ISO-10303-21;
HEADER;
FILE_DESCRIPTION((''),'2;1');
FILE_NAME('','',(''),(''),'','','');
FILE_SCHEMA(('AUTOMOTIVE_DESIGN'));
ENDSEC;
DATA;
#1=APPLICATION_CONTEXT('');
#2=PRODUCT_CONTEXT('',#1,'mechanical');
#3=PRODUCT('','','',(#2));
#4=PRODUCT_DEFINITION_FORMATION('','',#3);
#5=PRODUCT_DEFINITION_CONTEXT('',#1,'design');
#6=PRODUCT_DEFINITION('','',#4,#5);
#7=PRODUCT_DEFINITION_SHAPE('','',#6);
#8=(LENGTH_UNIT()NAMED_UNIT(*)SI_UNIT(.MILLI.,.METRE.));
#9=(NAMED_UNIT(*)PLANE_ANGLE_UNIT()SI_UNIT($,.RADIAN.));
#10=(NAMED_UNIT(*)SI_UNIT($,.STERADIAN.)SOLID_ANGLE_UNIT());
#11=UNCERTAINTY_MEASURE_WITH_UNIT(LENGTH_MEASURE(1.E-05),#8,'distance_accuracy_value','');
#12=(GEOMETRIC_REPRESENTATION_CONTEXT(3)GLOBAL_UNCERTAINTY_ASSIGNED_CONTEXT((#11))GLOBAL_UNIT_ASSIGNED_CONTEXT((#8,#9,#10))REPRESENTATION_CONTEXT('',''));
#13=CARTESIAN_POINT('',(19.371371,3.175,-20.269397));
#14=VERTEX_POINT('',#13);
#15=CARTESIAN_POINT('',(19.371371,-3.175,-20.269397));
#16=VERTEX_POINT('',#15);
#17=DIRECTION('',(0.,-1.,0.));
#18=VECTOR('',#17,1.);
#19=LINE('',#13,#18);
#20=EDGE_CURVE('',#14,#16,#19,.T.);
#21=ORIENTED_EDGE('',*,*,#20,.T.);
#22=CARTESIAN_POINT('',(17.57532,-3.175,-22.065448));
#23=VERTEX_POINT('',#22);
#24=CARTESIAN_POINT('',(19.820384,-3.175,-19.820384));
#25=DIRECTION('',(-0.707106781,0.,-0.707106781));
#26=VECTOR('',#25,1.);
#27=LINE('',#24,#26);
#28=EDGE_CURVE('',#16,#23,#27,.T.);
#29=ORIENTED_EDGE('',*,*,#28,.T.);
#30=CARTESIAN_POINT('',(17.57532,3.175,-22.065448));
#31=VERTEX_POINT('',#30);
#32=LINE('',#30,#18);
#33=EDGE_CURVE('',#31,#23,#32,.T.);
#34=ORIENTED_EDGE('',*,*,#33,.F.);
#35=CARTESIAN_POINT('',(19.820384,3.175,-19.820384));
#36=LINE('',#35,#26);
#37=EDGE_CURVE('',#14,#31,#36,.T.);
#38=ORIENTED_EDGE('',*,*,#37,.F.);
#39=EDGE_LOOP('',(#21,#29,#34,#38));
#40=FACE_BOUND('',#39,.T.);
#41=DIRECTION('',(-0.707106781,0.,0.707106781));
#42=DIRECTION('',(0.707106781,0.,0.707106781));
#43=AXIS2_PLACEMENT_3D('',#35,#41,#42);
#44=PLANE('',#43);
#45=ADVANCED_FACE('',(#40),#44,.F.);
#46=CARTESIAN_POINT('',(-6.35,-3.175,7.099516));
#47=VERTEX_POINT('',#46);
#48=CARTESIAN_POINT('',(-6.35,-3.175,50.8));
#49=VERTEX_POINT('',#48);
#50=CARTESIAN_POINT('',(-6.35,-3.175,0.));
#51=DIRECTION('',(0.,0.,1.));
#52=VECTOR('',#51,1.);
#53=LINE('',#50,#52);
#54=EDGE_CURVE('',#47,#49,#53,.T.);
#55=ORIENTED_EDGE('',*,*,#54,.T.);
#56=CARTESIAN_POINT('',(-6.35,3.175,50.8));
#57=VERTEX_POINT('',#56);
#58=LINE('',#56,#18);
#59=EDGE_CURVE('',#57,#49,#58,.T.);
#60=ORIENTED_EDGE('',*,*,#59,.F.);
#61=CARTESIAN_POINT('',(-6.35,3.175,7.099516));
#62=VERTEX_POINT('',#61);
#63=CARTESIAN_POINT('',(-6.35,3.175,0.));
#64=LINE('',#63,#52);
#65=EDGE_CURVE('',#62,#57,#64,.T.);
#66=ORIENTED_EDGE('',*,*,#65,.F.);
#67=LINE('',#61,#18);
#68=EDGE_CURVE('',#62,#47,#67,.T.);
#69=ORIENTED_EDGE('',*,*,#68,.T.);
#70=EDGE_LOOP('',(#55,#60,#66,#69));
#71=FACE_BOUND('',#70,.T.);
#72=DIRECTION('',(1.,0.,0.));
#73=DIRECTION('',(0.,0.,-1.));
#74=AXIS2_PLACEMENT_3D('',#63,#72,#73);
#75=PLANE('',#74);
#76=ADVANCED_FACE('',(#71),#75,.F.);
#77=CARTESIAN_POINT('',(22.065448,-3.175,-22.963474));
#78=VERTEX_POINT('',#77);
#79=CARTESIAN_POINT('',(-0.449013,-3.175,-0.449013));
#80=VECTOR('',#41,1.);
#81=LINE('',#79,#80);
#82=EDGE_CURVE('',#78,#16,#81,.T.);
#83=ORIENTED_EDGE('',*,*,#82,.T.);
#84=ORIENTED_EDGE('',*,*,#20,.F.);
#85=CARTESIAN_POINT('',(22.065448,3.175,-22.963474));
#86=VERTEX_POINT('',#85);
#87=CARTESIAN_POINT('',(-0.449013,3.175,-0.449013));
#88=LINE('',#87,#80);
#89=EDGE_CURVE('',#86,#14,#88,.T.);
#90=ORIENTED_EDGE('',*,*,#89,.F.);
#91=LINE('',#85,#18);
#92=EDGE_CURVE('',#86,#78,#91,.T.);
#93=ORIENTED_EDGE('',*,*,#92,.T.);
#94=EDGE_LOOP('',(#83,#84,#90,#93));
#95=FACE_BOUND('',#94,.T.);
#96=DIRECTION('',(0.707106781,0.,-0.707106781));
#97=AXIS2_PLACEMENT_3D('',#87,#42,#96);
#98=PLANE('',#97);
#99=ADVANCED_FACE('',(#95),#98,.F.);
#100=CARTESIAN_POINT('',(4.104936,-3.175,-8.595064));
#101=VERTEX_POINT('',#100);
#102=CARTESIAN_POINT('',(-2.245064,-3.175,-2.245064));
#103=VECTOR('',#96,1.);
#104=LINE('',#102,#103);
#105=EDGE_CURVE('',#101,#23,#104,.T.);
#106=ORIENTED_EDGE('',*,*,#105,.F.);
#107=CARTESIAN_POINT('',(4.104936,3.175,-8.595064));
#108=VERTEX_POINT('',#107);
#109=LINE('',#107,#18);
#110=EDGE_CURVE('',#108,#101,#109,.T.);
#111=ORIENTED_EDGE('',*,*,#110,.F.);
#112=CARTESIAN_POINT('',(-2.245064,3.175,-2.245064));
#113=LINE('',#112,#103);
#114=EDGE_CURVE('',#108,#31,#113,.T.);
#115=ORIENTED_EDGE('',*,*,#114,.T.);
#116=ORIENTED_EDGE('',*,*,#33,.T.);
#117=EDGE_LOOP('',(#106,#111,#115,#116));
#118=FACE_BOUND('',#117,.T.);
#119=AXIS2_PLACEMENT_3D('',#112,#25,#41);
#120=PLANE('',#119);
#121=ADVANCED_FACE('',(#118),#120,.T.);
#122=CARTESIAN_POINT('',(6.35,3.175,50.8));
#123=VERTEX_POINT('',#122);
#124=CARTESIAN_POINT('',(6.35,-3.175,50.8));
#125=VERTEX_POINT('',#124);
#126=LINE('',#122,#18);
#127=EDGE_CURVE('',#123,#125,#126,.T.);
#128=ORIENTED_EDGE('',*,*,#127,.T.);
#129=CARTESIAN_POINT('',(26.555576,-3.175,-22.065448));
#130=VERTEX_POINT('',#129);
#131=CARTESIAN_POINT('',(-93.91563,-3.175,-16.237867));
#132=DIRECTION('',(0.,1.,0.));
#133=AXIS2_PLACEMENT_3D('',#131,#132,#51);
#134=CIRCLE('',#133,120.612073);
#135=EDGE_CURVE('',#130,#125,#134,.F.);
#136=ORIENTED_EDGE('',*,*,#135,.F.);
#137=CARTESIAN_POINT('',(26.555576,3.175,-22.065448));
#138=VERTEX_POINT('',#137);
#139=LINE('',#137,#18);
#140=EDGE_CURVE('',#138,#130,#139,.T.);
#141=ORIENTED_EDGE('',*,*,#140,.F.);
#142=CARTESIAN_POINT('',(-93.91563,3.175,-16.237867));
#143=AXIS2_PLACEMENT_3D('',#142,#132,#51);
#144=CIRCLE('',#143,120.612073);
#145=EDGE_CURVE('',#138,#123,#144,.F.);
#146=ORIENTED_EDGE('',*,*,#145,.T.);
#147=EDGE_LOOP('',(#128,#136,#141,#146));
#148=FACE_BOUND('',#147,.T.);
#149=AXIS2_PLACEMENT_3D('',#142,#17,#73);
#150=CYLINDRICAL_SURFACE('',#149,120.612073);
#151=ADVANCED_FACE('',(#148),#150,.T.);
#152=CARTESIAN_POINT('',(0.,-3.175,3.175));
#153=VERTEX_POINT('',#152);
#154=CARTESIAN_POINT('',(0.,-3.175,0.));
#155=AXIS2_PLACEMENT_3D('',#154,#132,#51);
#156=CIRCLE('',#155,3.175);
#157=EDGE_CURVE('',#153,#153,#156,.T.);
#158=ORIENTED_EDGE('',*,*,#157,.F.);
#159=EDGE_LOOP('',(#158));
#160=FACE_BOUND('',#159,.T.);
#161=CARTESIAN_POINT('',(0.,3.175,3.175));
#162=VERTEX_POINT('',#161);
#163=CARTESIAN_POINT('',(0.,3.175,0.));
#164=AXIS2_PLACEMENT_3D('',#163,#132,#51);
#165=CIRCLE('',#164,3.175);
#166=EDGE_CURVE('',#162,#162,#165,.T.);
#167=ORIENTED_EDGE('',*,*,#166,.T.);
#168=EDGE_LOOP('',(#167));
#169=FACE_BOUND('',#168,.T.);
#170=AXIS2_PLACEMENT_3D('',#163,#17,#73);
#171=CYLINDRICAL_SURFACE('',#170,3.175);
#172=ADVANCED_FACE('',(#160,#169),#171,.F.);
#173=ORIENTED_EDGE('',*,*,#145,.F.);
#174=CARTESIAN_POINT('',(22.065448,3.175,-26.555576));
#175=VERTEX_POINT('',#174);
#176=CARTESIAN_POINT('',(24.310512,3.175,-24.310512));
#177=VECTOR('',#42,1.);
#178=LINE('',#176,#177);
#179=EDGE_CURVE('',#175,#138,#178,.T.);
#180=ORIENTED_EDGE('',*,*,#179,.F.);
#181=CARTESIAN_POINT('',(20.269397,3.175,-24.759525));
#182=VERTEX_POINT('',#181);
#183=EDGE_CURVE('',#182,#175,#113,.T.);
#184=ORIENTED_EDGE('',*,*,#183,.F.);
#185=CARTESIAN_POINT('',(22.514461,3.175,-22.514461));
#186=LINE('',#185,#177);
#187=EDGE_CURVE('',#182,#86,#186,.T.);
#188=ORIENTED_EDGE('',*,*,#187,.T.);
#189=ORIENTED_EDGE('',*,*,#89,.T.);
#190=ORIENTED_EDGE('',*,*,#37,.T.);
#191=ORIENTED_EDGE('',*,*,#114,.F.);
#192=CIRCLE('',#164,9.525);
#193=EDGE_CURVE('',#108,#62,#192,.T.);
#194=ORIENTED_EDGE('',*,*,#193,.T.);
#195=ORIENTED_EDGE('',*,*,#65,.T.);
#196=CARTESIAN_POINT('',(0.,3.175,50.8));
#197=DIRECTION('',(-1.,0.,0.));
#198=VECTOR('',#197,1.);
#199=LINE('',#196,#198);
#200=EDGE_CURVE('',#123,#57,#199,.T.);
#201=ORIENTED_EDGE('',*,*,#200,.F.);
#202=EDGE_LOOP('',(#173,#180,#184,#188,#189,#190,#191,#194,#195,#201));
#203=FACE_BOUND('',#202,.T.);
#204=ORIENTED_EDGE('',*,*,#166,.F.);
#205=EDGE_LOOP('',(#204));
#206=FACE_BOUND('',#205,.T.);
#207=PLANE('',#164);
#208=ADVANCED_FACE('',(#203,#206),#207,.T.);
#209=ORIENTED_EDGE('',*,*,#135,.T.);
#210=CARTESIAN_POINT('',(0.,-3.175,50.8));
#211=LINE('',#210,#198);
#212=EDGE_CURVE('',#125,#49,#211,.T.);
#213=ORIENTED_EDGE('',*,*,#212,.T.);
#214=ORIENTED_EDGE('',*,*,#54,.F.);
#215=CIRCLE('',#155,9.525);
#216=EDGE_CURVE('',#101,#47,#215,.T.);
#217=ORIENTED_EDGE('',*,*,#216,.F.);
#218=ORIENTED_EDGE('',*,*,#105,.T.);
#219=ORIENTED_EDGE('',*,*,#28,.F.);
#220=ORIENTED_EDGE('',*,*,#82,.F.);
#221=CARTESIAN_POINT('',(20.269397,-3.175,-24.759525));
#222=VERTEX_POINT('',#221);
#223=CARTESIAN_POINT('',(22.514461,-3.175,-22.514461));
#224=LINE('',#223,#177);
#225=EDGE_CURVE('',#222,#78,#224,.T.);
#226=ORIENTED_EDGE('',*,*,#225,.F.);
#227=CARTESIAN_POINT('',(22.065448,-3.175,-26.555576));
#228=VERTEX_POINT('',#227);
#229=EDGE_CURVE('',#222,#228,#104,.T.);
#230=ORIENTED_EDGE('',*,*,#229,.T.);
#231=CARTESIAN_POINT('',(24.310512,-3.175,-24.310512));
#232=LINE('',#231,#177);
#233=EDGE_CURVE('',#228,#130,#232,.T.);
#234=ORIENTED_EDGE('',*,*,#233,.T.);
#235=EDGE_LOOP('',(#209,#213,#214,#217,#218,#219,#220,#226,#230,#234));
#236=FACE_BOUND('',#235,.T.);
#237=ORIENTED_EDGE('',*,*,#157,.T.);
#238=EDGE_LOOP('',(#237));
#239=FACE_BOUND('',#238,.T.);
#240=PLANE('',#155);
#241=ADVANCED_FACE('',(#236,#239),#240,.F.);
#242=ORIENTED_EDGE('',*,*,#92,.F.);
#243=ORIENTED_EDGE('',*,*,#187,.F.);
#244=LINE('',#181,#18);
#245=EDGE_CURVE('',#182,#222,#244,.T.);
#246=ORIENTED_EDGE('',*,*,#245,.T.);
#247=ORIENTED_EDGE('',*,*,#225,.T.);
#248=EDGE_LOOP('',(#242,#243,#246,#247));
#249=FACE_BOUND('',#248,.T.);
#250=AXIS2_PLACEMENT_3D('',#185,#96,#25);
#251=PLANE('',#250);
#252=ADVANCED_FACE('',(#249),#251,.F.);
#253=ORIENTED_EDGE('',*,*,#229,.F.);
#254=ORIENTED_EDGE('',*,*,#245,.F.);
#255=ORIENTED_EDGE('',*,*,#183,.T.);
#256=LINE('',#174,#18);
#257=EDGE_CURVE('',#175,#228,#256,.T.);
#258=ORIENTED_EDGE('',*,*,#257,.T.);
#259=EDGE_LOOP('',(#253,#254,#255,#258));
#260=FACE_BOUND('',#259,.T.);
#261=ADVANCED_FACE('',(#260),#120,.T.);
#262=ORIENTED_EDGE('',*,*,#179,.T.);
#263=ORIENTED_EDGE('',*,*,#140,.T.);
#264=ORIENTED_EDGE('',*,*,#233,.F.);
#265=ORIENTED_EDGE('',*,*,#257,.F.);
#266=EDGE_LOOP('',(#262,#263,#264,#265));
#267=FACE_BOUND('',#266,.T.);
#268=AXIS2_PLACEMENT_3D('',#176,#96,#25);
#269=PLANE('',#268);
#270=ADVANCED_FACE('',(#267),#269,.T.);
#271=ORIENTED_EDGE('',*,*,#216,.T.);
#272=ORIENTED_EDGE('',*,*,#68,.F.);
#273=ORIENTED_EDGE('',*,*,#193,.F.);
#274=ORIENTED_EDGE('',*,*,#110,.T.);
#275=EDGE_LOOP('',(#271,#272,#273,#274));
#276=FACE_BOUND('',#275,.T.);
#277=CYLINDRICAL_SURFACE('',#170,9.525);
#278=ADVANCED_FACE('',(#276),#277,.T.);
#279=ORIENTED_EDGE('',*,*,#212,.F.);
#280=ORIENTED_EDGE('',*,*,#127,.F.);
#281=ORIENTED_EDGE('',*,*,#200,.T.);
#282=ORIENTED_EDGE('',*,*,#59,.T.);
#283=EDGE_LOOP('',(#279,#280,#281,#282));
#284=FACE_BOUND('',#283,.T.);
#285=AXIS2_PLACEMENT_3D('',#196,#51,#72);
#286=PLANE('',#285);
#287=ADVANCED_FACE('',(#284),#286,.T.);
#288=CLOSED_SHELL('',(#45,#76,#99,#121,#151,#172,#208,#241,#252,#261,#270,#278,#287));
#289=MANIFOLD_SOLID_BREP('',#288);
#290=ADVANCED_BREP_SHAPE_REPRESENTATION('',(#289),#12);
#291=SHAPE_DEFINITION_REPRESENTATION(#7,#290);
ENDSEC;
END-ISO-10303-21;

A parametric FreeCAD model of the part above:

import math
import FreeCAD as App
import Part
import Sketcher

V = App.Vector
Q = App.Units.Quantity

doc = App.newDocument("Part")
params = doc.addObject("Spreadsheet::Sheet", "Params")
for row, (alias, value) in enumerate([
    ("sketch1_diameter", "0.25 in"),
    ("sketch1_width", "0.5 in"),
    ("sketch1_radius", "0.375 in"),
    ("sketch1_length", "0.1 in"),
    ("sketch1_length2", "0.75 in"),
    ("pad1_length", "0.25 in"),
], start=1):
    params.set(f"A{row}", alias)
    params.set(f"B{row}", "=" + value)
    params.setAlias(f"B{row}", alias)

body = doc.addObject("PartDesign::Body", "Body")

# Sketch on XZ plane
sketch1 = doc.addObject("Sketcher::SketchObject", "Sketch")
body.addObject(sketch1)
sketch1.AttachmentSupport = (doc.XZ_Plane, [""])
sketch1.MapMode = "FlatFace"
sketch1.addGeometry([
    Part.LineSegment(V(17.6, -22.1, 0), V(4.1, -8.6, 0)),  # 0
    Part.ArcOfCircle(Part.Circle(V(0, 0, 0), V(0, 0, 1), 9.5), math.radians(132), math.radians(296)),  # 1
    Part.LineSegment(V(-6.3, 7.1, 0), V(-6.3, 50.8, 0)),  # 2
    Part.LineSegment(V(-6.3, 50.8, 0), V(6.3, 50.8, 0)),  # 3
    Part.ArcOfCircle(Part.Circle(V(-93.9, -16.2, 0), V(0, 0, 1), 120.6), math.radians(-3), math.radians(34)),  # 4
    Part.LineSegment(V(26.6, -22.1, 0), V(22.1, -26.6, 0)),  # 5
    Part.LineSegment(V(22.1, -26.6, 0), V(20.3, -24.8, 0)),  # 6
    Part.LineSegment(V(20.3, -24.8, 0), V(22.1, -23, 0)),  # 7
    Part.LineSegment(V(22.1, -23, 0), V(19.4, -20.3, 0)),  # 8
    Part.LineSegment(V(19.4, -20.3, 0), V(17.6, -22.1, 0)),  # 9
    Part.Circle(V(0, 0, 0), V(0, 0, 1), 3.2),  # 10
], False)
sketch1.addConstraint([
    Sketcher.Constraint("Coincident", 0, 2, 1, 2),
    Sketcher.Constraint("Coincident", 1, 1, 2, 1),
    Sketcher.Constraint("Coincident", 2, 2, 3, 1),
    Sketcher.Constraint("Coincident", 3, 2, 4, 2),
    Sketcher.Constraint("Coincident", 4, 1, 5, 1),
    Sketcher.Constraint("Coincident", 5, 2, 6, 1),
    Sketcher.Constraint("Coincident", 6, 2, 7, 1),
    Sketcher.Constraint("Coincident", 7, 2, 8, 1),
    Sketcher.Constraint("Coincident", 8, 2, 9, 1),
    Sketcher.Constraint("Coincident", 9, 2, 0, 1),
    Sketcher.Constraint("Vertical", 2),
    Sketcher.Constraint("Horizontal", 3),
    Sketcher.Constraint("Coincident", 1, 3, -1, 1),
    Sketcher.Constraint("Coincident", 10, 3, -1, 1),
    Sketcher.Constraint("Perpendicular", 0, 5),
    Sketcher.Constraint("Perpendicular", 5, 6),
    Sketcher.Constraint("Perpendicular", 6, 7),
    Sketcher.Constraint("Perpendicular", 7, 8),
    Sketcher.Constraint("Perpendicular", 8, 9),
    Sketcher.Constraint("Horizontal", 4, 1, 9, 2),
    Sketcher.Constraint("Vertical", 5, 2, 7, 2),
    Sketcher.Constraint("Equal", 6, 7),
    Sketcher.Constraint("Equal", 7, 9),
    Sketcher.Constraint("Diameter", 10, Q("0.25 in")),
    Sketcher.Constraint("DistanceX", 3, 1, 3, 2, Q("0.5 in")),
    Sketcher.Constraint("DistanceY", -1, 1, 2, 2, Q("2 in")),
    Sketcher.Constraint("Radius", 1, Q("0.375 in")),
    Sketcher.Constraint("Distance", 6, Q("0.1 in")),
    Sketcher.Constraint("Distance", 0, Q("0.75 in")),
    Sketcher.Constraint("Distance", 5, Q("0.25 in")),
    Sketcher.Constraint("DistanceX", 1, 1, -1, 1, Q("0.25 in")),
    Sketcher.Constraint("Radius", 4, Q("120.612073 mm")),
    Sketcher.Constraint("DistanceX", 4, 3, -1, 1, Q("93.91563 mm")),
])
sketch1.setExpression("Constraints[23]", "Params.sketch1_diameter")
sketch1.setExpression("Constraints[24]", "Params.sketch1_width")
sketch1.setExpression("Constraints[26]", "Params.sketch1_radius")
sketch1.setExpression("Constraints[27]", "Params.sketch1_length")
sketch1.setExpression("Constraints[28]", "Params.sketch1_length2")
pad1 = doc.addObject("PartDesign::Pad", "Pad")
body.addObject(pad1)
pad1.Profile = sketch1
pad1.setExpression("Length", "Params.pad1_length")
pad1.Midplane = True

doc.recompute()
